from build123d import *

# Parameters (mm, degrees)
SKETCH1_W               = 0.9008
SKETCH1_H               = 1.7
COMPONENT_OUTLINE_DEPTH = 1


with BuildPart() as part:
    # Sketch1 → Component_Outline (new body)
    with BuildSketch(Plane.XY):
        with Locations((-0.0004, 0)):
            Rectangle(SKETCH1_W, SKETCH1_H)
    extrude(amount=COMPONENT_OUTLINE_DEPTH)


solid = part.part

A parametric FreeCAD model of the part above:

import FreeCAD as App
import Part
import Sketcher
Q = App.Units.Quantity

doc = App.newDocument("Part")
body = doc.addObject("PartDesign::Body", "Body")

# Sketch on XY plane
sketch1 = doc.addObject("Sketcher::SketchObject", "Sketch")
body.addObject(sketch1)
sketch1.AttachmentSupport = (doc.XY_Plane, [""])
sketch1.MapMode = "FlatFace"
sketch1.addGeometry([
    Part.LineSegment(App.Vector(-0.5, 0.8, 0), App.Vector(-0.5, -0.8, 0)),
    Part.LineSegment(App.Vector(-0.5, -0.8, 0), App.Vector(0.5, -0.8, 0)),
    Part.LineSegment(App.Vector(0.5, -0.8, 0), App.Vector(0.5, 0.8, 0)),
    Part.LineSegment(App.Vector(0.5, 0.8, 0), App.Vector(-0.5, 0.8, 0)),
], False)
sketch1.addConstraint([
    Sketcher.Constraint("Coincident", 0, 2, 1, 1),
    Sketcher.Constraint("Coincident", 1, 2, 2, 1),
    Sketcher.Constraint("Coincident", 2, 2, 3, 1),
    Sketcher.Constraint("Coincident", 3, 2, 0, 1),
    Sketcher.Constraint("Vertical", 0),
    Sketcher.Constraint("Horizontal", 1),
    Sketcher.Constraint("Vertical", 2),
    Sketcher.Constraint("Horizontal", 3),
    Sketcher.Constraint("DistanceY", 0, 2, 0, 1, Q("1.7 mm")),
    Sketcher.Constraint("DistanceY", 0, 2, -1, 1, Q("0.85 mm")),
    Sketcher.Constraint("DistanceX", -1, 1, 1, 2, Q("0.45 mm")),
    Sketcher.Constraint("DistanceX", 1, 1, 1, 2, Q("0.9008 mm")),
])
pad1 = doc.addObject("PartDesign::Pad", "Pad")
body.addObject(pad1)
pad1.Profile = sketch1
pad1.Length = 1

doc.recompute()
